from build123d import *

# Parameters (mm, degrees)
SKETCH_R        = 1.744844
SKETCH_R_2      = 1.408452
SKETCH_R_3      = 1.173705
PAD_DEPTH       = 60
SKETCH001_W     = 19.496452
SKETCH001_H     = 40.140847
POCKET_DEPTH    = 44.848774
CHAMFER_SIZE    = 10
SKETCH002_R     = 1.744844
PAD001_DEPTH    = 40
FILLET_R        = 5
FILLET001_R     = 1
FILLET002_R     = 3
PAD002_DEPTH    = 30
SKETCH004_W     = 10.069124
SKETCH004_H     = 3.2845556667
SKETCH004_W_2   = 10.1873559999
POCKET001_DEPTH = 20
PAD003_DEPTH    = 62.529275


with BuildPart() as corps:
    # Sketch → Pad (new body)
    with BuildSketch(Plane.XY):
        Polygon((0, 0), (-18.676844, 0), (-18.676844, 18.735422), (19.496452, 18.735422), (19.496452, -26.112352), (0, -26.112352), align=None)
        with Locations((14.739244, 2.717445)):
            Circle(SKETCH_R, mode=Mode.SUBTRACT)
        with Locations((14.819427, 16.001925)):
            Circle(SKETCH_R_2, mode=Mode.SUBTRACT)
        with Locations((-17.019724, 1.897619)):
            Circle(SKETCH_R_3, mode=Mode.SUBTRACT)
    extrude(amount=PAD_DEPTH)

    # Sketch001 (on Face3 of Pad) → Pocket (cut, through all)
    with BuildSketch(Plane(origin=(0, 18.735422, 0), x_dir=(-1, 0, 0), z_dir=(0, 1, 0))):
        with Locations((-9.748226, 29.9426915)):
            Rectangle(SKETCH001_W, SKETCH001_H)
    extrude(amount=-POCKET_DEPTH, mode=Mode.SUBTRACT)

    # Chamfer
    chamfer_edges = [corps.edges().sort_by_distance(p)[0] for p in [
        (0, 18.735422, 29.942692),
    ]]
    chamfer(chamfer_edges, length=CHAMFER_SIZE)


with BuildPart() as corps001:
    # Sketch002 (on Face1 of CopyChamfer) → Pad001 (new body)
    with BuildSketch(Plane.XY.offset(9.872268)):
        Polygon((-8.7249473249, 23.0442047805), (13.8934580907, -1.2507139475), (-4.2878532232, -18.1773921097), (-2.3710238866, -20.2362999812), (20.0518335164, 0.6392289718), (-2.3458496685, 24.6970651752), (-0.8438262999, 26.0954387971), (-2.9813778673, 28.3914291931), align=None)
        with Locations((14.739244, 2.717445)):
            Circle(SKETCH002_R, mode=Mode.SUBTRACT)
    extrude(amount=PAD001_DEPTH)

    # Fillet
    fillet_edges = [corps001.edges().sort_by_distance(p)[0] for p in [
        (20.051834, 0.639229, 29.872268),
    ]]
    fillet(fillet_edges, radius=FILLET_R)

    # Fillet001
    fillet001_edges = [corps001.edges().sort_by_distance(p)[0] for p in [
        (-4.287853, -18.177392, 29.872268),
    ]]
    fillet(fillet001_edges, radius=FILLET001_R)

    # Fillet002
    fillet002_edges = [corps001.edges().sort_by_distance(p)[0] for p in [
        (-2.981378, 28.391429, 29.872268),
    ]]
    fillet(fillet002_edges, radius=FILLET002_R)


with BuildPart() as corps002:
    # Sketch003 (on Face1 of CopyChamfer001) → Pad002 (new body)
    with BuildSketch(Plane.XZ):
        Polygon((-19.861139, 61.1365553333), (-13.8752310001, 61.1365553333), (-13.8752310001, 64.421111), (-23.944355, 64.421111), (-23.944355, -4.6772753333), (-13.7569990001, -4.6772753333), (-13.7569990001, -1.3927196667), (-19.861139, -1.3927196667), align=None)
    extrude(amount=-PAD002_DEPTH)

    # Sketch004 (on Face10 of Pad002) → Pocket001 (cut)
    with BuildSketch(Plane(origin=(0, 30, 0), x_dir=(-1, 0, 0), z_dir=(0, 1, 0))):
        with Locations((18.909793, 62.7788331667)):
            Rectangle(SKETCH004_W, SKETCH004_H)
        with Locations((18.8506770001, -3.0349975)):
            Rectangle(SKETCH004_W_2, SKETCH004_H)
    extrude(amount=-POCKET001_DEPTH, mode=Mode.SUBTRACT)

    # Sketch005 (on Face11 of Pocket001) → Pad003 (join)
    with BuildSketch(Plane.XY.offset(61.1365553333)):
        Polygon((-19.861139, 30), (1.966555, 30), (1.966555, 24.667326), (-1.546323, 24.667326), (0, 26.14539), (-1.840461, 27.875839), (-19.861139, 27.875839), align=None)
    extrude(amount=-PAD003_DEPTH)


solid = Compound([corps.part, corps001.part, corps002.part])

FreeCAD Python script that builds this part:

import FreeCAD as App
import Part
import Sketcher
Q = App.Units.Quantity


def edges_at(feature, points):
    """Names of the edges that pass closest to the given points."""
    edges = feature.Shape.Edges
    near = lambda p: min(range(len(edges)), key=lambda i: edges[i].distToShape(Part.Vertex(*p))[0])
    return sorted({f"Edge{near(p) + 1}" for p in points})


def add_polygon(sketch, points):
    """Adds a closed chain of lines whose ends are joined by coincident constraints."""
    first, n = sketch.GeometryCount, len(points)
    for a, b in zip(points, points[1:] + points[:1]):
        sketch.addGeometry(Part.LineSegment(App.Vector(*a, 0), App.Vector(*b, 0)), False)
    for i in range(n):
        sketch.addConstraint(Sketcher.Constraint("Coincident", first + i, 2, first + (i + 1) % n, 1))

doc = App.newDocument("Part")
params = doc.addObject("Spreadsheet::Sheet", "Params")
for row, (alias, value) in enumerate([
    ("pad1_length", "60 mm"),
    ("chamfer_size", "10 mm"),
    ("pad2_length", "40 mm"),
    ("fillet_radius", "5 mm"),
    ("fillet2_radius", "1 mm"),
    ("fillet3_radius", "3 mm"),
    ("pad3_length", "30 mm"),
    ("pocket2_length", "20 mm"),
    ("pad4_length", "62.529275 mm"),
], start=1):
    params.set(f"A{row}", alias)
    params.set(f"B{row}", "=" + value)
    params.setAlias(f"B{row}", alias)

body = doc.addObject("PartDesign::Body", "Body")

# Sketch on XY plane
sketch1 = body.newObject("Sketcher::SketchObject", "Sketch")
sketch1.AttachmentSupport = (doc.getObject("XY_Plane"), [""])
sketch1.MapMode = "FlatFace"
add_polygon(sketch1, [(-18.7, 0), (0, 0), (0, -26.1), (19.5, -26.1), (19.5, 18.7), (-18.7, 18.7)])  # lines 0-5
sketch1.addGeometry(Part.Circle(App.Vector(14.7, 2.7, 0), App.Vector(0, 0, 1), 1.7), False)  # 6
sketch1.addGeometry(Part.Circle(App.Vector(-17, 1.9, 0), App.Vector(0, 0, 1), 1.2), False)  # 7
sketch1.addGeometry(Part.Circle(App.Vector(14.8, 16, 0), App.Vector(0, 0, 1), 1.4), False)  # 8
sketch1.addConstraint(Sketcher.Constraint("Horizontal", 0))
sketch1.addConstraint(Sketcher.Constraint("Vertical", 1))
sketch1.addConstraint(Sketcher.Constraint("Horizontal", 2))
sketch1.addConstraint(Sketcher.Constraint("Vertical", 3))
sketch1.addConstraint(Sketcher.Constraint("Horizontal", 4))
sketch1.addConstraint(Sketcher.Constraint("Vertical", 5))
sketch1.addConstraint(Sketcher.Constraint("Coincident", 0, 2, -1, 1))
sketch1.addConstraint(Sketcher.Constraint("Diameter", 6, Q("3.489688 mm")))
sketch1.addConstraint(Sketcher.Constraint("Diameter", 7, Q("2.34741 mm")))
sketch1.addConstraint(Sketcher.Constraint("Diameter", 8, Q("2.816904 mm")))
sketch1.addConstraint(Sketcher.Constraint("DistanceY", 5, 2, 5, 1, Q("18.735422 mm")))
sketch1.addConstraint(Sketcher.Constraint("DistanceX", 0, 1, 0, 2, Q("18.676844 mm")))
sketch1.addConstraint(Sketcher.Constraint("DistanceX", 2, 1, 2, 2, Q("19.496452 mm")))
sketch1.addConstraint(Sketcher.Constraint("DistanceY", 1, 2, 1, 1, Q("26.112352 mm")))
sketch1.addConstraint(Sketcher.Constraint("DistanceY", -1, 1, 7, 3, Q("1.897619 mm")))
sketch1.addConstraint(Sketcher.Constraint("DistanceY", 6, 3, 8, 3, Q("13.28448 mm")))
sketch1.addConstraint(Sketcher.Constraint("DistanceX", 7, 3, 8, 3, Q("31.839151 mm")))
sketch1.addConstraint(Sketcher.Constraint("DistanceX", 6, 3, 2, 2, Q("4.757208 mm")))
sketch1.addConstraint(Sketcher.Constraint("DistanceX", 4, 2, 7, 3, Q("1.65712 mm")))
sketch1.addConstraint(Sketcher.Constraint("DistanceY", -1, 1, 6, 3, Q("2.717445 mm")))
pad1 = body.newObject("PartDesign::Pad", "Pad")
pad1.Profile = sketch1
pad1.setExpression("Length", "Params.pad1_length")

# Sketch on XZ plane
sketch2 = body.newObject("Sketcher::SketchObject", "Sketch001")
sketch2.AttachmentSupport = (doc.getObject("XZ_Plane"), [""])
sketch2.MapMode = "FlatFace"
sketch2.AttachmentOffset = App.Placement(App.Vector(0, 0, -18.735422), App.Rotation())
add_polygon(sketch2, [(19, 50), (19, 10), (0, 10), (0, 50)])  # lines 0-3
sketch2.addConstraint(Sketcher.Constraint("Vertical", 0))
sketch2.addConstraint(Sketcher.Constraint("Horizontal", 1))
sketch2.addConstraint(Sketcher.Constraint("Vertical", 2))
sketch2.addConstraint(Sketcher.Constraint("Horizontal", 3))
sketch2.addConstraint(Sketcher.Constraint("PointOnObject", 1, 2, -2))
sketch2.addConstraint(Sketcher.Constraint("DistanceX", 1, 2, 1, 1, Q("19.496452 mm")))
sketch2.addConstraint(Sketcher.Constraint("DistanceY", 0, 2, 0, 1, Q("40.140847 mm")))
sketch2.addConstraint(Sketcher.Constraint("DistanceY", -1, 1, 0, 2, Q("9.872268 mm")))
pocket1 = body.newObject("PartDesign::Pocket", "Pocket")
pocket1.Profile = sketch2
pocket1.Type = "ThroughAll"
pocket1.Reversed = True
doc.recompute()

chamfer = body.newObject("PartDesign::Chamfer", "Chamfer")
chamfer.Base = (pocket1, edges_at(pocket1, [(0, 18.735, 29.943)]))
chamfer.setExpression("Size", "Params.chamfer_size")
body2 = doc.addObject("PartDesign::Body", "Body001")

# Sketch on XY plane
sketch3 = body2.newObject("Sketcher::SketchObject", "Sketch002")
sketch3.AttachmentSupport = (doc.getObject("XY_Plane001"), [""])
sketch3.MapMode = "FlatFace"
sketch3.AttachmentOffset = App.Placement(App.Vector(0, 0, 9.872268), App.Rotation())
add_polygon(sketch3, [(-8.7, 23), (13.9, -1.3), (-4.3, -18.2), (-2.4, -20.2), (20.1, 0.6), (-2.3, 24.7), (-0.8, 26.1), (-3, 28.4)])  # lines 0-7
sketch3.addGeometry(Part.Circle(App.Vector(14.7, 2.7, 0), App.Vector(0, 0, 1), 1.7), False)  # 8
sketch3.addConstraint(Sketcher.Constraint("Perpendicular", 0, 1))
sketch3.addConstraint(Sketcher.Constraint("Perpendicular", 1, 2))
sketch3.addConstraint(Sketcher.Constraint("Perpendicular", 2, 3))
sketch3.addConstraint(Sketcher.Constraint("Perpendicular", 3, 4))
sketch3.addConstraint(Sketcher.Constraint("Perpendicular", 4, 5))
sketch3.addConstraint(Sketcher.Constraint("Perpendicular", 5, 6))
sketch3.addConstraint(Sketcher.Constraint("Perpendicular", 6, 7))
sketch3.addConstraint(Sketcher.Constraint("Diameter", 8, Q("3.489688 mm")))
sketch3.addConstraint(Sketcher.Constraint("Distance", 5, Q("2.0522 mm")))
sketch3.addConstraint(Sketcher.Constraint("DistanceY", 2, 2, -1, 1, Q("20.2363 mm")))
sketch3.addConstraint(Sketcher.Constraint("DistanceY", 3, 2, 6, 2, Q("27.7522 mm")))
sketch3.addConstraint(Sketcher.Constraint("Distance", 4, Q("32.869982 mm")))
sketch3.addConstraint(Sketcher.Constraint("Distance", 6, Q("3.136989 mm")))
sketch3.addConstraint(Sketcher.Constraint("Distance", 7, Q("7.847382 mm")))
sketch3.addConstraint(Sketcher.Constraint("DistanceX", -1, 1, 0, 2, Q("13.893458 mm")))
sketch3.addConstraint(Sketcher.Constraint("DistanceY", -1, 1, 3, 2, Q("0.639229 mm")))
sketch3.addConstraint(Sketcher.Constraint("DistanceX", 4, 2, -1, 1, Q("2.34585 mm")))
sketch3.addConstraint(Sketcher.Constraint("DistanceY", 0, 2, 8, 3, Q("3.968159 mm")))
sketch3.addConstraint(Sketcher.Constraint("DistanceX", 8, 3, 3, 2, Q("5.31259 mm")))
pad2 = body2.newObject("PartDesign::Pad", "Pad001")
pad2.Profile = sketch3
pad2.setExpression("Length", "Params.pad2_length")
doc.recompute()

fillet = body2.newObject("PartDesign::Fillet", "Fillet")
fillet.Base = (pad2, edges_at(pad2, [(20.052, 0.639, 29.872)]))
fillet.setExpression("Radius", "Params.fillet_radius")
doc.recompute()

fillet2 = body2.newObject("PartDesign::Fillet", "Fillet001")
fillet2.Base = (fillet, edges_at(fillet, [(-4.288, -18.177, 29.872)]))
fillet2.setExpression("Radius", "Params.fillet2_radius")
doc.recompute()

fillet3 = body2.newObject("PartDesign::Fillet", "Fillet002")
fillet3.Base = (fillet2, edges_at(fillet2, [(-2.981, 28.391, 29.872)]))
fillet3.setExpression("Radius", "Params.fillet3_radius")
body3 = doc.addObject("PartDesign::Body", "Body002")

# Sketch on XZ plane
sketch4 = body3.newObject("Sketcher::SketchObject", "Sketch003")
sketch4.AttachmentSupport = (doc.getObject("XZ_Plane002"), [""])
sketch4.MapMode = "FlatFace"
add_polygon(sketch4, [(-19.9, 61.1), (-13.9, 61.1), (-13.9, 64.4), (-23.9, 64.4), (-23.9, -4.7), (-13.8, -4.7), (-13.8, -1.4), (-19.9, -1.4)])  # lines 0-7
sketch4.addConstraint(Sketcher.Constraint("Horizontal", 0))
sketch4.addConstraint(Sketcher.Constraint("Vertical", 1))
sketch4.addConstraint(Sketcher.Constraint("Horizontal", 2))
sketch4.addConstraint(Sketcher.Constraint("Vertical", 3))
sketch4.addConstraint(Sketcher.Constraint("Horizontal", 4))
sketch4.addConstraint(Sketcher.Constraint("Vertical", 5))
sketch4.addConstraint(Sketcher.Constraint("Horizontal", 6))
sketch4.addConstraint(Sketcher.Constraint("Vertical", 7))
sketch4.addConstraint(Sketcher.Constraint("Equal", 1, 5))
sketch4.addConstraint(Sketcher.Constraint("DistanceX", 4, 2, -1, 1, Q("13.756999 mm")))
sketch4.addConstraint(Sketcher.Constraint("DistanceX", 0, 1, 0, 2, Q("5.985908 mm")))
sketch4.addConstraint(Sketcher.Constraint("DistanceX", 6, 2, 6, 1, Q("6.10414 mm")))
sketch4.addConstraint(Sketcher.Constraint("DistanceX", 2, 2, 2, 1, Q("10.069124 mm")))
sketch4.addConstraint(Sketcher.Constraint("DistanceY", 1, 1, 1, 2, Q("3.284556 mm")))
sketch4.addConstraint(Sketcher.Constraint("DistanceY", 3, 2, 3, 1, Q("69.098386 mm")))
sketch4.addConstraint(Sketcher.Constraint("DistanceY", -1, 1, 1, 2, Q("64.421111 mm")))
pad3 = body3.newObject("PartDesign::Pad", "Pad002")
pad3.Profile = sketch4
pad3.setExpression("Length", "Params.pad3_length")
pad3.Reversed = True

# Sketch on XZ plane
sketch5 = body3.newObject("Sketcher::SketchObject", "Sketch004")
sketch5.AttachmentSupport = (doc.getObject("XZ_Plane002"), [""])
sketch5.MapMode = "FlatFace"
sketch5.AttachmentOffset = App.Placement(App.Vector(0, 0, -30), App.Rotation())
add_polygon(sketch5, [(-13.9, 64.4), (-13.9, 61.1), (-23.9, 61.1), (-23.9, 64.4)])  # lines 0-3
add_polygon(sketch5, [(-13.8, -1.4), (-13.8, -4.7), (-23.9, -4.7), (-23.9, -1.4)])  # lines 4-7
sketch5.addConstraint(Sketcher.Constraint("Vertical", 0))
sketch5.addConstraint(Sketcher.Constraint("Horizontal", 1))
sketch5.addConstraint(Sketcher.Constraint("Vertical", 2))
sketch5.addConstraint(Sketcher.Constraint("Horizontal", 3))
sketch5.addConstraint(Sketcher.Constraint("Vertical", 4))
sketch5.addConstraint(Sketcher.Constraint("Horizontal", 5))
sketch5.addConstraint(Sketcher.Constraint("Vertical", 6))
sketch5.addConstraint(Sketcher.Constraint("Horizontal", 7))
sketch5.addConstraint(Sketcher.Constraint("Vertical", 2, 2, 5, 2))
sketch5.addConstraint(Sketcher.Constraint("Equal", 2, 4))
sketch5.addConstraint(Sketcher.Constraint("DistanceX", 4, 2, -1, 1, Q("13.756999 mm")))
sketch5.addConstraint(Sketcher.Constraint("DistanceX", 1, 2, 1, 1, Q("10.069124 mm")))
sketch5.addConstraint(Sketcher.Constraint("DistanceX", 5, 2, 5, 1, Q("10.187356 mm")))
sketch5.addConstraint(Sketcher.Constraint("DistanceY", 0, 2, 0, 1, Q("3.284556 mm")))
sketch5.addConstraint(Sketcher.Constraint("DistanceY", -1, 1, 2, 2, Q("64.421111 mm")))
sketch5.addConstraint(Sketcher.Constraint("DistanceY", 6, 2, -1, 1, Q("1.39272 mm")))
pocket2 = body3.newObject("PartDesign::Pocket", "Pocket001")
pocket2.Profile = sketch5
pocket2.setExpression("Length", "Params.pocket2_length")
pocket2.Reversed = True

# Sketch on XY plane
sketch6 = body3.newObject("Sketcher::SketchObject", "Sketch005")
sketch6.AttachmentSupport = (doc.getObject("XY_Plane002"), [""])
sketch6.MapMode = "FlatFace"
sketch6.AttachmentOffset = App.Placement(App.Vector(0, 0, 61.136555), App.Rotation())
add_polygon(sketch6, [(2, 30), (-19.9, 30), (-19.9, 27.9), (-1.8, 27.9), (0, 26.1), (-1.5, 24.7), (2, 24.7)])  # lines 0-6
sketch6.addConstraint(Sketcher.Constraint("Horizontal", 0))
sketch6.addConstraint(Sketcher.Constraint("Vertical", 1))
sketch6.addConstraint(Sketcher.Constraint("Horizontal", 2))
sketch6.addConstraint(Sketcher.Constraint("Horizontal", 5))
sketch6.addConstraint(Sketcher.Constraint("Vertical", 6))
sketch6.addConstraint(Sketcher.Constraint("PointOnObject", 3, 2, -2))
sketch6.addConstraint(Sketcher.Constraint("DistanceY", -1, 1, 0, 2, Q("30 mm")))
sketch6.addConstraint(Sketcher.Constraint("DistanceX", 2, 1, 2, 2, Q("18.020678 mm")))
sketch6.addConstraint(Sketcher.Constraint("DistanceY", 1, 2, 1, 1, Q("2.124161 mm")))
sketch6.addConstraint(Sketcher.Constraint("Distance", 4, Q("2.139109 mm")))
sketch6.addConstraint(Sketcher.Constraint("DistanceX", 0, 2, 0, 1, Q("21.827694 mm")))
sketch6.addConstraint(Sketcher.Constraint("DistanceX", 5, 1, 5, 2, Q("3.512878 mm")))
sketch6.addConstraint(Sketcher.Constraint("DistanceY", 6, 1, 6, 2, Q("5.332674 mm")))
sketch6.addConstraint(Sketcher.Constraint("DistanceX", 0, 2, -1, 1, Q("19.861139 mm")))
pad4 = body3.newObject("PartDesign::Pad", "Pad003")
pad4.Profile = sketch6
pad4.setExpression("Length", "Params.pad4_length")
pad4.Reversed = True

doc.recompute()
